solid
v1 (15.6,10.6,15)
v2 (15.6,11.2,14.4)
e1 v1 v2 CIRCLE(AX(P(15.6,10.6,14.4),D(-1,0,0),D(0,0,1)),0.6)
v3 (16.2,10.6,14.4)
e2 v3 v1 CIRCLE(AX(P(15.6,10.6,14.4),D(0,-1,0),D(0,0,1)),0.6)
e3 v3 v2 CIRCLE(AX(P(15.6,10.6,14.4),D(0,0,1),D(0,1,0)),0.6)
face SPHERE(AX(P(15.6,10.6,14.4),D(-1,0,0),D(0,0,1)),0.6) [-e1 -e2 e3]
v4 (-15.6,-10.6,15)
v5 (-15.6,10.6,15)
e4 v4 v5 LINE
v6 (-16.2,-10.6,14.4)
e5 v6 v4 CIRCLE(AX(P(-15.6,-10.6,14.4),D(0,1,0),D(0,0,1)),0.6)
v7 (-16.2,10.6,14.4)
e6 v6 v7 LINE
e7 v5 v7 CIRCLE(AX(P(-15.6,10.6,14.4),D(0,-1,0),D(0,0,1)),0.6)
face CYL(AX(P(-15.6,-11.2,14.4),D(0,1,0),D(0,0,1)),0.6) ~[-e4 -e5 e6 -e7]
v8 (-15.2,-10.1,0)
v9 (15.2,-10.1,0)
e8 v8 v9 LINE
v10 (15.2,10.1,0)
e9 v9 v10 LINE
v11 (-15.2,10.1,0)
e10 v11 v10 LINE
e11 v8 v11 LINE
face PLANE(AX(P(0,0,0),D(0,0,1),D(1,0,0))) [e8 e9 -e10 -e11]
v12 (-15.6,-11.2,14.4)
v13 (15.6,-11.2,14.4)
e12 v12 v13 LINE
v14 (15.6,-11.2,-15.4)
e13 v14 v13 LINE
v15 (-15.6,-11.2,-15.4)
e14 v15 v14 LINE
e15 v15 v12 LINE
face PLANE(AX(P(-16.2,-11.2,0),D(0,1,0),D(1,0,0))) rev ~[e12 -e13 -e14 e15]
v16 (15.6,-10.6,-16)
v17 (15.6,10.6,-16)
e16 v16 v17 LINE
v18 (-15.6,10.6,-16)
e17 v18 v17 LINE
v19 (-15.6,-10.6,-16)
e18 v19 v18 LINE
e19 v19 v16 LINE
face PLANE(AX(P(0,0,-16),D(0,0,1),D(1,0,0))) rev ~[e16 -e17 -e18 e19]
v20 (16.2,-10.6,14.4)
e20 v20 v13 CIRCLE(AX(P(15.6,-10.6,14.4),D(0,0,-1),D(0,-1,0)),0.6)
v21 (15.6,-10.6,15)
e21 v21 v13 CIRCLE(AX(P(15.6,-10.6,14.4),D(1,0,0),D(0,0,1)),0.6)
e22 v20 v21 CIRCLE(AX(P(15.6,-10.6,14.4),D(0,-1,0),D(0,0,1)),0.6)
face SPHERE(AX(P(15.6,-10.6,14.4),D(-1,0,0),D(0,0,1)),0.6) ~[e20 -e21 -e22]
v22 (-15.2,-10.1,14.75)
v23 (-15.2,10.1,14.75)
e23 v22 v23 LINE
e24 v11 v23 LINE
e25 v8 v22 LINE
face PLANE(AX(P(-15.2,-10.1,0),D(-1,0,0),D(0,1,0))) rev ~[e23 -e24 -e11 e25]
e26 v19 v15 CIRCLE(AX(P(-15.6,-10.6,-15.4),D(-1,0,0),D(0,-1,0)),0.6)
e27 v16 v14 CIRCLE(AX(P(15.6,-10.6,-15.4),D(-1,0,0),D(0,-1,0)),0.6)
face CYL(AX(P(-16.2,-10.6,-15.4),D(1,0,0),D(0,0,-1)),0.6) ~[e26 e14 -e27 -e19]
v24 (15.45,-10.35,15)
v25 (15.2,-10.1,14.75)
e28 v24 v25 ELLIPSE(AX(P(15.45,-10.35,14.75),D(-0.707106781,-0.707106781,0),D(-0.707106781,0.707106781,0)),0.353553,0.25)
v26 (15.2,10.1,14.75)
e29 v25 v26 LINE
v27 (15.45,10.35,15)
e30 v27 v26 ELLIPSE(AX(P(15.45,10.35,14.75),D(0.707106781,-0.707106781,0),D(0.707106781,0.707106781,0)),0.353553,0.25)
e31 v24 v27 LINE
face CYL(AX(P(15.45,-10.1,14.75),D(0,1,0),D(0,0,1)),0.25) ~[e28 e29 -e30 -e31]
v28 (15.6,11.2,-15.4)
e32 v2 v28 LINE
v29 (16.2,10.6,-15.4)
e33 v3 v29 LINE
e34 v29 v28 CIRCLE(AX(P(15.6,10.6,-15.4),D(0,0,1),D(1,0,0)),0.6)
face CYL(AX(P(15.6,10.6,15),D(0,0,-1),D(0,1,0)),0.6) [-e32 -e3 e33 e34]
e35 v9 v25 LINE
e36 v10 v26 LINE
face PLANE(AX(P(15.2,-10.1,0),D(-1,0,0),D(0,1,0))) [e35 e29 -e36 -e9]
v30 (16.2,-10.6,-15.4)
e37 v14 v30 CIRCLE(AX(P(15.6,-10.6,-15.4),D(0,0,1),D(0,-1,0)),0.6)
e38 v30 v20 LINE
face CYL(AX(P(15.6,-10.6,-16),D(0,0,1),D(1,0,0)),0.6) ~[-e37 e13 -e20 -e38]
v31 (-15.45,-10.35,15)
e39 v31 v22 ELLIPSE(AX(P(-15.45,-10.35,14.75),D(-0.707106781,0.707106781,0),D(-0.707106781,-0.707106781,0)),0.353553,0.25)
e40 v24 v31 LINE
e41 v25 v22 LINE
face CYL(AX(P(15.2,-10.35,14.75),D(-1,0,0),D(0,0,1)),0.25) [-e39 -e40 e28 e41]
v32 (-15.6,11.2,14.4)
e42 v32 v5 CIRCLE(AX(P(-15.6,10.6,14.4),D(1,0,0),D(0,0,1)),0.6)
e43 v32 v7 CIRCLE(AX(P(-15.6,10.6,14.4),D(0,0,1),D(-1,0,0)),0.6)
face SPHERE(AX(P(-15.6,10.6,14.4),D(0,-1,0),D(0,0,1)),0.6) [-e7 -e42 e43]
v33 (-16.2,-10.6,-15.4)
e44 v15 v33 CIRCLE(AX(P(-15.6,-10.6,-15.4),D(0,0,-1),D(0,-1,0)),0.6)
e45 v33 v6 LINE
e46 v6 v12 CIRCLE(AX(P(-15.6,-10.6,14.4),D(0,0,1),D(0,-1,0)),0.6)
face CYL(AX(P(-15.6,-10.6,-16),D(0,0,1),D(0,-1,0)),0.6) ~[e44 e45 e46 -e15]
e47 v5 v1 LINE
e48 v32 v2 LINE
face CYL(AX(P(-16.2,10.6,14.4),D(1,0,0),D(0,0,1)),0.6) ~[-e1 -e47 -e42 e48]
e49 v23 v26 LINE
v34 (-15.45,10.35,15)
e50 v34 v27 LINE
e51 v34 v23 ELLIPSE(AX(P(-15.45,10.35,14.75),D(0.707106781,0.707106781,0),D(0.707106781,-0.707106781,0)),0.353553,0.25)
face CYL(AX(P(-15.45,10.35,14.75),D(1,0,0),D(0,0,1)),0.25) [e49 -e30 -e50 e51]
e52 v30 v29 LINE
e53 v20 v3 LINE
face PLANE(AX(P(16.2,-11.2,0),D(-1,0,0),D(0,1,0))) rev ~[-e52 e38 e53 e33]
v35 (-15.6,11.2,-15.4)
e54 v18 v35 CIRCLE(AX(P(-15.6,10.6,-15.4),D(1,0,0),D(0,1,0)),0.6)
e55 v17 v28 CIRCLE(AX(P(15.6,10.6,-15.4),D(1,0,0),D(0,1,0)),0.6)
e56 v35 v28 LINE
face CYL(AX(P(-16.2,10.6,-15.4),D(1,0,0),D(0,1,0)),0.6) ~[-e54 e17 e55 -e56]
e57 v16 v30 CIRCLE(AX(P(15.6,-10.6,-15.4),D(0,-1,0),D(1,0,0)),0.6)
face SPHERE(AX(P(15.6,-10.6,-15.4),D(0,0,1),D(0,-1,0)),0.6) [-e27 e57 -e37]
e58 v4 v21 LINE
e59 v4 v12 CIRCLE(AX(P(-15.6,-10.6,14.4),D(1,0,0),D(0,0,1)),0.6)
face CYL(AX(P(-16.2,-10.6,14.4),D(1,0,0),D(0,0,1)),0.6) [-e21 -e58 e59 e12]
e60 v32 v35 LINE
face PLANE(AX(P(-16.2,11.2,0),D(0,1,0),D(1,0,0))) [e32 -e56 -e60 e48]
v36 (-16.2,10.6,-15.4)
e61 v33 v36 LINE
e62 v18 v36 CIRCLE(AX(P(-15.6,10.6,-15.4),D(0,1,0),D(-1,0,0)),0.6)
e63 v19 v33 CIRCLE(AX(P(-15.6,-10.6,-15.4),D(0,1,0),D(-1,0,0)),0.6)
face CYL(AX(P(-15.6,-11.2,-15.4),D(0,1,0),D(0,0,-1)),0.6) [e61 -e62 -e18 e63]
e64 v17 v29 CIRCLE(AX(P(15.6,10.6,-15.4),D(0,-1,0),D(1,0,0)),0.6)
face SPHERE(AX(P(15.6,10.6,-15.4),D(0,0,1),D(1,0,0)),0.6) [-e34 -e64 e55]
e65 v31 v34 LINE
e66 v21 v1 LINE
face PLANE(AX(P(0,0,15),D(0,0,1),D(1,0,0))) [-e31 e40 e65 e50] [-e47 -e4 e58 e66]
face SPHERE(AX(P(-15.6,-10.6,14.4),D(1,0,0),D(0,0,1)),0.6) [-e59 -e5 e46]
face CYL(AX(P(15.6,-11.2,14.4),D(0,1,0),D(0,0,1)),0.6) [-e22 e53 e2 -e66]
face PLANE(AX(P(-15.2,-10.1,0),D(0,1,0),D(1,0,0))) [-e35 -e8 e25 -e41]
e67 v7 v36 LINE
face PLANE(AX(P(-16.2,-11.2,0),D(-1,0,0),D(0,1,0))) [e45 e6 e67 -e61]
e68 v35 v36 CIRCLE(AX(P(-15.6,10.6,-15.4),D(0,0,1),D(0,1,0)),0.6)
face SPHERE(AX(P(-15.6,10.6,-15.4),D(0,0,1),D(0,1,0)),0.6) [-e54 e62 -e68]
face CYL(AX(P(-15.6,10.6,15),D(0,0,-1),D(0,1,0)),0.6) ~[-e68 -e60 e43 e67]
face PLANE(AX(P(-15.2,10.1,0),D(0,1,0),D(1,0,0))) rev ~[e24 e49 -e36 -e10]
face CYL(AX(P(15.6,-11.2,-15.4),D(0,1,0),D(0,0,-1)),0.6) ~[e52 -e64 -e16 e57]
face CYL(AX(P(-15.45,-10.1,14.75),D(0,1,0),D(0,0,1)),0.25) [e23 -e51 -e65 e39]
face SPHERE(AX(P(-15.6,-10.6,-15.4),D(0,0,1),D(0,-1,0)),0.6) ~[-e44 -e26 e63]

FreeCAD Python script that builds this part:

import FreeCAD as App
import Part
import Sketcher
from FreeCAD import Vector


def edges_at(feature, points):
    """Names of the edges that pass closest to the given points."""
    edges = feature.Shape.Edges
    near = lambda p: min(range(len(edges)), key=lambda i: edges[i].distToShape(Part.Vertex(*p))[0])
    return sorted({f"Edge{near(p) + 1}" for p in points})

doc = App.newDocument("Part")
body = doc.addObject("PartDesign::Body", "Body")

sketch1 = body.newObject("Sketcher::SketchObject", "Sketch")
sketch1.AttachmentSupport = (doc.getObject("XY_Plane"), [""])
sketch1.MapMode = "FlatFace"
sketch1.addGeometry(Part.LineSegment(Vector(-15.2, 10.1, 0), Vector(-15.2, -10.1, 0)), False)
sketch1.addGeometry(Part.LineSegment(Vector(-15.2, -10.1, 0), Vector(15.2, -10.1, 0)), False)
sketch1.addGeometry(Part.LineSegment(Vector(15.2, -10.1, 0), Vector(15.2, 10.1, 0)), False)
sketch1.addGeometry(Part.LineSegment(Vector(15.2, 10.1, 0), Vector(-15.2, 10.1, 0)), False)
sketch1.addConstraint(Sketcher.Constraint("Coincident", 0, 2, 1, 1))
sketch1.addConstraint(Sketcher.Constraint("Coincident", 1, 2, 2, 1))
sketch1.addConstraint(Sketcher.Constraint("Coincident", 2, 2, 3, 1))
sketch1.addConstraint(Sketcher.Constraint("Coincident", 3, 2, 0, 1))
sketch1.addConstraint(Sketcher.Constraint("Vertical", 0))
sketch1.addConstraint(Sketcher.Constraint("Horizontal", 1))
sketch1.addConstraint(Sketcher.Constraint("Vertical", 2))
sketch1.addConstraint(Sketcher.Constraint("Horizontal", 3))
sketch1.addConstraint(Sketcher.Constraint("Symmetric", 0, 2, 2, 2, -1, 1))
sketch1.addConstraint(Sketcher.Constraint("DistanceX", 1, 1, 1, 2, 30.4))
sketch1.addConstraint(Sketcher.Constraint("DistanceY", 0, 2, 0, 1, 20.2))
pad1 = body.newObject("PartDesign::Pad", "Pad")
pad1.Profile = sketch1
pad1.Length = 16
pad1.Reversed = True

sketch2 = body.newObject("Sketcher::SketchObject", "Sketch001")
sketch2.AttachmentSupport = (doc.getObject("XY_Plane"), [""])
sketch2.MapMode = "FlatFace"
sketch2.addGeometry(Part.LineSegment(Vector(-16.2, 11.2, 0), Vector(-16.2, -11.2, 0)), False)
sketch2.addGeometry(Part.LineSegment(Vector(-16.2, -11.2, 0), Vector(16.2, -11.2, 0)), False)
sketch2.addGeometry(Part.LineSegment(Vector(16.2, -11.2, 0), Vector(16.2, 11.2, 0)), False)
sketch2.addGeometry(Part.LineSegment(Vector(16.2, 11.2, 0), Vector(-16.2, 11.2, 0)), False)
sketch2.addGeometry(Part.LineSegment(Vector(15.2, -10.1, 0), Vector(-15.2, -10.1, 0)), False)
sketch2.addGeometry(Part.LineSegment(Vector(-15.2, -10.1, 0), Vector(-15.2, 10.1, 0)), False)
sketch2.addGeometry(Part.LineSegment(Vector(-15.2, 10.1, 0), Vector(15.2, 10.1, 0)), False)
sketch2.addGeometry(Part.LineSegment(Vector(15.2, 10.1, 0), Vector(15.2, -10.1, 0)), False)
sketch2.addConstraint(Sketcher.Constraint("Coincident", 0, 2, 1, 1))
sketch2.addConstraint(Sketcher.Constraint("Coincident", 1, 2, 2, 1))
sketch2.addConstraint(Sketcher.Constraint("Coincident", 2, 2, 3, 1))
sketch2.addConstraint(Sketcher.Constraint("Coincident", 3, 2, 0, 1))
sketch2.addConstraint(Sketcher.Constraint("Coincident", 4, 2, 5, 1))
sketch2.addConstraint(Sketcher.Constraint("Coincident", 5, 2, 6, 1))
sketch2.addConstraint(Sketcher.Constraint("Coincident", 6, 2, 7, 1))
sketch2.addConstraint(Sketcher.Constraint("Coincident", 7, 2, 4, 1))
sketch2.addConstraint(Sketcher.Constraint("Vertical", 0))
sketch2.addConstraint(Sketcher.Constraint("Horizontal", 1))
sketch2.addConstraint(Sketcher.Constraint("Vertical", 2))
sketch2.addConstraint(Sketcher.Constraint("Horizontal", 3))
sketch2.addConstraint(Sketcher.Constraint("Horizontal", 4))
sketch2.addConstraint(Sketcher.Constraint("Vertical", 5))
sketch2.addConstraint(Sketcher.Constraint("Horizontal", 6))
sketch2.addConstraint(Sketcher.Constraint("Vertical", 7))
sketch2.addConstraint(Sketcher.Constraint("Symmetric", 0, 2, 2, 2, -1, 1))
sketch2.addConstraint(Sketcher.Constraint("Symmetric", 4, 2, 6, 2, -1, 1))
sketch2.addConstraint(Sketcher.Constraint("DistanceX", 1, 1, 1, 2, 32.4))
sketch2.addConstraint(Sketcher.Constraint("DistanceX", 4, 2, 4, 1, 30.4))
sketch2.addConstraint(Sketcher.Constraint("DistanceY", 0, 2, 0, 1, 22.4))
sketch2.addConstraint(Sketcher.Constraint("DistanceY", 5, 1, 5, 2, 20.2))
pad2 = body.newObject("PartDesign::Pad", "Pad001")
pad2.Profile = sketch2
pad2.Length = 16
pad2.Reversed = True

sketch3 = body.newObject("Sketcher::SketchObject", "Sketch002")
sketch3.AttachmentSupport = (doc.getObject("XY_Plane"), [""])
sketch3.MapMode = "FlatFace"
sketch3.addGeometry(Part.LineSegment(Vector(-16.2, 11.2, 0), Vector(-16.2, -11.2, 0)), False)
sketch3.addGeometry(Part.LineSegment(Vector(-16.2, -11.2, 0), Vector(16.2, -11.2, 0)), False)
sketch3.addGeometry(Part.LineSegment(Vector(16.2, -11.2, 0), Vector(16.2, 11.2, 0)), False)
sketch3.addGeometry(Part.LineSegment(Vector(16.2, 11.2, 0), Vector(-16.2, 11.2, 0)), False)
sketch3.addGeometry(Part.LineSegment(Vector(15.2, -10.1, 0), Vector(-15.2, -10.1, 0)), False)
sketch3.addGeometry(Part.LineSegment(Vector(-15.2, -10.1, 0), Vector(-15.2, 10.1, 0)), False)
sketch3.addGeometry(Part.LineSegment(Vector(-15.2, 10.1, 0), Vector(15.2, 10.1, 0)), False)
sketch3.addGeometry(Part.LineSegment(Vector(15.2, 10.1, 0), Vector(15.2, -10.1, 0)), False)
sketch3.addConstraint(Sketcher.Constraint("Coincident", 0, 2, 1, 1))
sketch3.addConstraint(Sketcher.Constraint("Coincident", 1, 2, 2, 1))
sketch3.addConstraint(Sketcher.Constraint("Coincident", 2, 2, 3, 1))
sketch3.addConstraint(Sketcher.Constraint("Coincident", 3, 2, 0, 1))
sketch3.addConstraint(Sketcher.Constraint("Coincident", 4, 2, 5, 1))
sketch3.addConstraint(Sketcher.Constraint("Coincident", 5, 2, 6, 1))
sketch3.addConstraint(Sketcher.Constraint("Coincident", 6, 2, 7, 1))
sketch3.addConstraint(Sketcher.Constraint("Coincident", 7, 2, 4, 1))
sketch3.addConstraint(Sketcher.Constraint("Vertical", 0))
sketch3.addConstraint(Sketcher.Constraint("Horizontal", 1))
sketch3.addConstraint(Sketcher.Constraint("Vertical", 2))
sketch3.addConstraint(Sketcher.Constraint("Horizontal", 3))
sketch3.addConstraint(Sketcher.Constraint("Horizontal", 4))
sketch3.addConstraint(Sketcher.Constraint("Vertical", 5))
sketch3.addConstraint(Sketcher.Constraint("Horizontal", 6))
sketch3.addConstraint(Sketcher.Constraint("Vertical", 7))
sketch3.addConstraint(Sketcher.Constraint("Symmetric", 0, 2, 2, 2, -1, 1))
sketch3.addConstraint(Sketcher.Constraint("Symmetric", 4, 2, 6, 2, -1, 1))
sketch3.addConstraint(Sketcher.Constraint("DistanceX", 1, 1, 1, 2, 32.4))
sketch3.addConstraint(Sketcher.Constraint("DistanceX", 4, 2, 4, 1, 30.4))
sketch3.addConstraint(Sketcher.Constraint("DistanceY", 0, 2, 0, 1, 22.4))
sketch3.addConstraint(Sketcher.Constraint("DistanceY", 5, 1, 5, 2, 20.2))
pad3 = body.newObject("PartDesign::Pad", "Pad002")
pad3.Profile = sketch3
pad3.Length = 15
doc.recompute()

fillet = body.newObject("PartDesign::Fillet", "Fillet")
fillet.Base = (pad3, edges_at(pad3, [(-15.2, 0, 15)]))
fillet.Radius = 0.25
doc.recompute()

fillet2 = body.newObject("PartDesign::Fillet", "Fillet001")
fillet2.Base = (fillet, edges_at(fillet, [(-0.125, 10.1, 15), (15.2, 0, 15), (-0.125, -10.1, 15)]))
fillet2.Radius = 0.25
doc.recompute()

fillet3 = body.newObject("PartDesign::Fillet", "Fillet002")
fillet3.Base = (fillet2, edges_at(fillet2, [
    (0, -11.2, 15),
    (-16.2, 0, 15),
    (0, 11.2, 15),
    (16.2, 0, 15),
    (-16.2, -11.2, -0.5),
    (16.2, -11.2, -0.5),
    (16.2, 11.2, -0.5),
    (-16.2, 11.2, -0.5),
    (0, -11.2, -16),
    (16.2, 0, -16),
    (0, 11.2, -16),
    (-16.2, 0, -16),
]))
fillet3.Radius = 0.6

doc.recompute()
